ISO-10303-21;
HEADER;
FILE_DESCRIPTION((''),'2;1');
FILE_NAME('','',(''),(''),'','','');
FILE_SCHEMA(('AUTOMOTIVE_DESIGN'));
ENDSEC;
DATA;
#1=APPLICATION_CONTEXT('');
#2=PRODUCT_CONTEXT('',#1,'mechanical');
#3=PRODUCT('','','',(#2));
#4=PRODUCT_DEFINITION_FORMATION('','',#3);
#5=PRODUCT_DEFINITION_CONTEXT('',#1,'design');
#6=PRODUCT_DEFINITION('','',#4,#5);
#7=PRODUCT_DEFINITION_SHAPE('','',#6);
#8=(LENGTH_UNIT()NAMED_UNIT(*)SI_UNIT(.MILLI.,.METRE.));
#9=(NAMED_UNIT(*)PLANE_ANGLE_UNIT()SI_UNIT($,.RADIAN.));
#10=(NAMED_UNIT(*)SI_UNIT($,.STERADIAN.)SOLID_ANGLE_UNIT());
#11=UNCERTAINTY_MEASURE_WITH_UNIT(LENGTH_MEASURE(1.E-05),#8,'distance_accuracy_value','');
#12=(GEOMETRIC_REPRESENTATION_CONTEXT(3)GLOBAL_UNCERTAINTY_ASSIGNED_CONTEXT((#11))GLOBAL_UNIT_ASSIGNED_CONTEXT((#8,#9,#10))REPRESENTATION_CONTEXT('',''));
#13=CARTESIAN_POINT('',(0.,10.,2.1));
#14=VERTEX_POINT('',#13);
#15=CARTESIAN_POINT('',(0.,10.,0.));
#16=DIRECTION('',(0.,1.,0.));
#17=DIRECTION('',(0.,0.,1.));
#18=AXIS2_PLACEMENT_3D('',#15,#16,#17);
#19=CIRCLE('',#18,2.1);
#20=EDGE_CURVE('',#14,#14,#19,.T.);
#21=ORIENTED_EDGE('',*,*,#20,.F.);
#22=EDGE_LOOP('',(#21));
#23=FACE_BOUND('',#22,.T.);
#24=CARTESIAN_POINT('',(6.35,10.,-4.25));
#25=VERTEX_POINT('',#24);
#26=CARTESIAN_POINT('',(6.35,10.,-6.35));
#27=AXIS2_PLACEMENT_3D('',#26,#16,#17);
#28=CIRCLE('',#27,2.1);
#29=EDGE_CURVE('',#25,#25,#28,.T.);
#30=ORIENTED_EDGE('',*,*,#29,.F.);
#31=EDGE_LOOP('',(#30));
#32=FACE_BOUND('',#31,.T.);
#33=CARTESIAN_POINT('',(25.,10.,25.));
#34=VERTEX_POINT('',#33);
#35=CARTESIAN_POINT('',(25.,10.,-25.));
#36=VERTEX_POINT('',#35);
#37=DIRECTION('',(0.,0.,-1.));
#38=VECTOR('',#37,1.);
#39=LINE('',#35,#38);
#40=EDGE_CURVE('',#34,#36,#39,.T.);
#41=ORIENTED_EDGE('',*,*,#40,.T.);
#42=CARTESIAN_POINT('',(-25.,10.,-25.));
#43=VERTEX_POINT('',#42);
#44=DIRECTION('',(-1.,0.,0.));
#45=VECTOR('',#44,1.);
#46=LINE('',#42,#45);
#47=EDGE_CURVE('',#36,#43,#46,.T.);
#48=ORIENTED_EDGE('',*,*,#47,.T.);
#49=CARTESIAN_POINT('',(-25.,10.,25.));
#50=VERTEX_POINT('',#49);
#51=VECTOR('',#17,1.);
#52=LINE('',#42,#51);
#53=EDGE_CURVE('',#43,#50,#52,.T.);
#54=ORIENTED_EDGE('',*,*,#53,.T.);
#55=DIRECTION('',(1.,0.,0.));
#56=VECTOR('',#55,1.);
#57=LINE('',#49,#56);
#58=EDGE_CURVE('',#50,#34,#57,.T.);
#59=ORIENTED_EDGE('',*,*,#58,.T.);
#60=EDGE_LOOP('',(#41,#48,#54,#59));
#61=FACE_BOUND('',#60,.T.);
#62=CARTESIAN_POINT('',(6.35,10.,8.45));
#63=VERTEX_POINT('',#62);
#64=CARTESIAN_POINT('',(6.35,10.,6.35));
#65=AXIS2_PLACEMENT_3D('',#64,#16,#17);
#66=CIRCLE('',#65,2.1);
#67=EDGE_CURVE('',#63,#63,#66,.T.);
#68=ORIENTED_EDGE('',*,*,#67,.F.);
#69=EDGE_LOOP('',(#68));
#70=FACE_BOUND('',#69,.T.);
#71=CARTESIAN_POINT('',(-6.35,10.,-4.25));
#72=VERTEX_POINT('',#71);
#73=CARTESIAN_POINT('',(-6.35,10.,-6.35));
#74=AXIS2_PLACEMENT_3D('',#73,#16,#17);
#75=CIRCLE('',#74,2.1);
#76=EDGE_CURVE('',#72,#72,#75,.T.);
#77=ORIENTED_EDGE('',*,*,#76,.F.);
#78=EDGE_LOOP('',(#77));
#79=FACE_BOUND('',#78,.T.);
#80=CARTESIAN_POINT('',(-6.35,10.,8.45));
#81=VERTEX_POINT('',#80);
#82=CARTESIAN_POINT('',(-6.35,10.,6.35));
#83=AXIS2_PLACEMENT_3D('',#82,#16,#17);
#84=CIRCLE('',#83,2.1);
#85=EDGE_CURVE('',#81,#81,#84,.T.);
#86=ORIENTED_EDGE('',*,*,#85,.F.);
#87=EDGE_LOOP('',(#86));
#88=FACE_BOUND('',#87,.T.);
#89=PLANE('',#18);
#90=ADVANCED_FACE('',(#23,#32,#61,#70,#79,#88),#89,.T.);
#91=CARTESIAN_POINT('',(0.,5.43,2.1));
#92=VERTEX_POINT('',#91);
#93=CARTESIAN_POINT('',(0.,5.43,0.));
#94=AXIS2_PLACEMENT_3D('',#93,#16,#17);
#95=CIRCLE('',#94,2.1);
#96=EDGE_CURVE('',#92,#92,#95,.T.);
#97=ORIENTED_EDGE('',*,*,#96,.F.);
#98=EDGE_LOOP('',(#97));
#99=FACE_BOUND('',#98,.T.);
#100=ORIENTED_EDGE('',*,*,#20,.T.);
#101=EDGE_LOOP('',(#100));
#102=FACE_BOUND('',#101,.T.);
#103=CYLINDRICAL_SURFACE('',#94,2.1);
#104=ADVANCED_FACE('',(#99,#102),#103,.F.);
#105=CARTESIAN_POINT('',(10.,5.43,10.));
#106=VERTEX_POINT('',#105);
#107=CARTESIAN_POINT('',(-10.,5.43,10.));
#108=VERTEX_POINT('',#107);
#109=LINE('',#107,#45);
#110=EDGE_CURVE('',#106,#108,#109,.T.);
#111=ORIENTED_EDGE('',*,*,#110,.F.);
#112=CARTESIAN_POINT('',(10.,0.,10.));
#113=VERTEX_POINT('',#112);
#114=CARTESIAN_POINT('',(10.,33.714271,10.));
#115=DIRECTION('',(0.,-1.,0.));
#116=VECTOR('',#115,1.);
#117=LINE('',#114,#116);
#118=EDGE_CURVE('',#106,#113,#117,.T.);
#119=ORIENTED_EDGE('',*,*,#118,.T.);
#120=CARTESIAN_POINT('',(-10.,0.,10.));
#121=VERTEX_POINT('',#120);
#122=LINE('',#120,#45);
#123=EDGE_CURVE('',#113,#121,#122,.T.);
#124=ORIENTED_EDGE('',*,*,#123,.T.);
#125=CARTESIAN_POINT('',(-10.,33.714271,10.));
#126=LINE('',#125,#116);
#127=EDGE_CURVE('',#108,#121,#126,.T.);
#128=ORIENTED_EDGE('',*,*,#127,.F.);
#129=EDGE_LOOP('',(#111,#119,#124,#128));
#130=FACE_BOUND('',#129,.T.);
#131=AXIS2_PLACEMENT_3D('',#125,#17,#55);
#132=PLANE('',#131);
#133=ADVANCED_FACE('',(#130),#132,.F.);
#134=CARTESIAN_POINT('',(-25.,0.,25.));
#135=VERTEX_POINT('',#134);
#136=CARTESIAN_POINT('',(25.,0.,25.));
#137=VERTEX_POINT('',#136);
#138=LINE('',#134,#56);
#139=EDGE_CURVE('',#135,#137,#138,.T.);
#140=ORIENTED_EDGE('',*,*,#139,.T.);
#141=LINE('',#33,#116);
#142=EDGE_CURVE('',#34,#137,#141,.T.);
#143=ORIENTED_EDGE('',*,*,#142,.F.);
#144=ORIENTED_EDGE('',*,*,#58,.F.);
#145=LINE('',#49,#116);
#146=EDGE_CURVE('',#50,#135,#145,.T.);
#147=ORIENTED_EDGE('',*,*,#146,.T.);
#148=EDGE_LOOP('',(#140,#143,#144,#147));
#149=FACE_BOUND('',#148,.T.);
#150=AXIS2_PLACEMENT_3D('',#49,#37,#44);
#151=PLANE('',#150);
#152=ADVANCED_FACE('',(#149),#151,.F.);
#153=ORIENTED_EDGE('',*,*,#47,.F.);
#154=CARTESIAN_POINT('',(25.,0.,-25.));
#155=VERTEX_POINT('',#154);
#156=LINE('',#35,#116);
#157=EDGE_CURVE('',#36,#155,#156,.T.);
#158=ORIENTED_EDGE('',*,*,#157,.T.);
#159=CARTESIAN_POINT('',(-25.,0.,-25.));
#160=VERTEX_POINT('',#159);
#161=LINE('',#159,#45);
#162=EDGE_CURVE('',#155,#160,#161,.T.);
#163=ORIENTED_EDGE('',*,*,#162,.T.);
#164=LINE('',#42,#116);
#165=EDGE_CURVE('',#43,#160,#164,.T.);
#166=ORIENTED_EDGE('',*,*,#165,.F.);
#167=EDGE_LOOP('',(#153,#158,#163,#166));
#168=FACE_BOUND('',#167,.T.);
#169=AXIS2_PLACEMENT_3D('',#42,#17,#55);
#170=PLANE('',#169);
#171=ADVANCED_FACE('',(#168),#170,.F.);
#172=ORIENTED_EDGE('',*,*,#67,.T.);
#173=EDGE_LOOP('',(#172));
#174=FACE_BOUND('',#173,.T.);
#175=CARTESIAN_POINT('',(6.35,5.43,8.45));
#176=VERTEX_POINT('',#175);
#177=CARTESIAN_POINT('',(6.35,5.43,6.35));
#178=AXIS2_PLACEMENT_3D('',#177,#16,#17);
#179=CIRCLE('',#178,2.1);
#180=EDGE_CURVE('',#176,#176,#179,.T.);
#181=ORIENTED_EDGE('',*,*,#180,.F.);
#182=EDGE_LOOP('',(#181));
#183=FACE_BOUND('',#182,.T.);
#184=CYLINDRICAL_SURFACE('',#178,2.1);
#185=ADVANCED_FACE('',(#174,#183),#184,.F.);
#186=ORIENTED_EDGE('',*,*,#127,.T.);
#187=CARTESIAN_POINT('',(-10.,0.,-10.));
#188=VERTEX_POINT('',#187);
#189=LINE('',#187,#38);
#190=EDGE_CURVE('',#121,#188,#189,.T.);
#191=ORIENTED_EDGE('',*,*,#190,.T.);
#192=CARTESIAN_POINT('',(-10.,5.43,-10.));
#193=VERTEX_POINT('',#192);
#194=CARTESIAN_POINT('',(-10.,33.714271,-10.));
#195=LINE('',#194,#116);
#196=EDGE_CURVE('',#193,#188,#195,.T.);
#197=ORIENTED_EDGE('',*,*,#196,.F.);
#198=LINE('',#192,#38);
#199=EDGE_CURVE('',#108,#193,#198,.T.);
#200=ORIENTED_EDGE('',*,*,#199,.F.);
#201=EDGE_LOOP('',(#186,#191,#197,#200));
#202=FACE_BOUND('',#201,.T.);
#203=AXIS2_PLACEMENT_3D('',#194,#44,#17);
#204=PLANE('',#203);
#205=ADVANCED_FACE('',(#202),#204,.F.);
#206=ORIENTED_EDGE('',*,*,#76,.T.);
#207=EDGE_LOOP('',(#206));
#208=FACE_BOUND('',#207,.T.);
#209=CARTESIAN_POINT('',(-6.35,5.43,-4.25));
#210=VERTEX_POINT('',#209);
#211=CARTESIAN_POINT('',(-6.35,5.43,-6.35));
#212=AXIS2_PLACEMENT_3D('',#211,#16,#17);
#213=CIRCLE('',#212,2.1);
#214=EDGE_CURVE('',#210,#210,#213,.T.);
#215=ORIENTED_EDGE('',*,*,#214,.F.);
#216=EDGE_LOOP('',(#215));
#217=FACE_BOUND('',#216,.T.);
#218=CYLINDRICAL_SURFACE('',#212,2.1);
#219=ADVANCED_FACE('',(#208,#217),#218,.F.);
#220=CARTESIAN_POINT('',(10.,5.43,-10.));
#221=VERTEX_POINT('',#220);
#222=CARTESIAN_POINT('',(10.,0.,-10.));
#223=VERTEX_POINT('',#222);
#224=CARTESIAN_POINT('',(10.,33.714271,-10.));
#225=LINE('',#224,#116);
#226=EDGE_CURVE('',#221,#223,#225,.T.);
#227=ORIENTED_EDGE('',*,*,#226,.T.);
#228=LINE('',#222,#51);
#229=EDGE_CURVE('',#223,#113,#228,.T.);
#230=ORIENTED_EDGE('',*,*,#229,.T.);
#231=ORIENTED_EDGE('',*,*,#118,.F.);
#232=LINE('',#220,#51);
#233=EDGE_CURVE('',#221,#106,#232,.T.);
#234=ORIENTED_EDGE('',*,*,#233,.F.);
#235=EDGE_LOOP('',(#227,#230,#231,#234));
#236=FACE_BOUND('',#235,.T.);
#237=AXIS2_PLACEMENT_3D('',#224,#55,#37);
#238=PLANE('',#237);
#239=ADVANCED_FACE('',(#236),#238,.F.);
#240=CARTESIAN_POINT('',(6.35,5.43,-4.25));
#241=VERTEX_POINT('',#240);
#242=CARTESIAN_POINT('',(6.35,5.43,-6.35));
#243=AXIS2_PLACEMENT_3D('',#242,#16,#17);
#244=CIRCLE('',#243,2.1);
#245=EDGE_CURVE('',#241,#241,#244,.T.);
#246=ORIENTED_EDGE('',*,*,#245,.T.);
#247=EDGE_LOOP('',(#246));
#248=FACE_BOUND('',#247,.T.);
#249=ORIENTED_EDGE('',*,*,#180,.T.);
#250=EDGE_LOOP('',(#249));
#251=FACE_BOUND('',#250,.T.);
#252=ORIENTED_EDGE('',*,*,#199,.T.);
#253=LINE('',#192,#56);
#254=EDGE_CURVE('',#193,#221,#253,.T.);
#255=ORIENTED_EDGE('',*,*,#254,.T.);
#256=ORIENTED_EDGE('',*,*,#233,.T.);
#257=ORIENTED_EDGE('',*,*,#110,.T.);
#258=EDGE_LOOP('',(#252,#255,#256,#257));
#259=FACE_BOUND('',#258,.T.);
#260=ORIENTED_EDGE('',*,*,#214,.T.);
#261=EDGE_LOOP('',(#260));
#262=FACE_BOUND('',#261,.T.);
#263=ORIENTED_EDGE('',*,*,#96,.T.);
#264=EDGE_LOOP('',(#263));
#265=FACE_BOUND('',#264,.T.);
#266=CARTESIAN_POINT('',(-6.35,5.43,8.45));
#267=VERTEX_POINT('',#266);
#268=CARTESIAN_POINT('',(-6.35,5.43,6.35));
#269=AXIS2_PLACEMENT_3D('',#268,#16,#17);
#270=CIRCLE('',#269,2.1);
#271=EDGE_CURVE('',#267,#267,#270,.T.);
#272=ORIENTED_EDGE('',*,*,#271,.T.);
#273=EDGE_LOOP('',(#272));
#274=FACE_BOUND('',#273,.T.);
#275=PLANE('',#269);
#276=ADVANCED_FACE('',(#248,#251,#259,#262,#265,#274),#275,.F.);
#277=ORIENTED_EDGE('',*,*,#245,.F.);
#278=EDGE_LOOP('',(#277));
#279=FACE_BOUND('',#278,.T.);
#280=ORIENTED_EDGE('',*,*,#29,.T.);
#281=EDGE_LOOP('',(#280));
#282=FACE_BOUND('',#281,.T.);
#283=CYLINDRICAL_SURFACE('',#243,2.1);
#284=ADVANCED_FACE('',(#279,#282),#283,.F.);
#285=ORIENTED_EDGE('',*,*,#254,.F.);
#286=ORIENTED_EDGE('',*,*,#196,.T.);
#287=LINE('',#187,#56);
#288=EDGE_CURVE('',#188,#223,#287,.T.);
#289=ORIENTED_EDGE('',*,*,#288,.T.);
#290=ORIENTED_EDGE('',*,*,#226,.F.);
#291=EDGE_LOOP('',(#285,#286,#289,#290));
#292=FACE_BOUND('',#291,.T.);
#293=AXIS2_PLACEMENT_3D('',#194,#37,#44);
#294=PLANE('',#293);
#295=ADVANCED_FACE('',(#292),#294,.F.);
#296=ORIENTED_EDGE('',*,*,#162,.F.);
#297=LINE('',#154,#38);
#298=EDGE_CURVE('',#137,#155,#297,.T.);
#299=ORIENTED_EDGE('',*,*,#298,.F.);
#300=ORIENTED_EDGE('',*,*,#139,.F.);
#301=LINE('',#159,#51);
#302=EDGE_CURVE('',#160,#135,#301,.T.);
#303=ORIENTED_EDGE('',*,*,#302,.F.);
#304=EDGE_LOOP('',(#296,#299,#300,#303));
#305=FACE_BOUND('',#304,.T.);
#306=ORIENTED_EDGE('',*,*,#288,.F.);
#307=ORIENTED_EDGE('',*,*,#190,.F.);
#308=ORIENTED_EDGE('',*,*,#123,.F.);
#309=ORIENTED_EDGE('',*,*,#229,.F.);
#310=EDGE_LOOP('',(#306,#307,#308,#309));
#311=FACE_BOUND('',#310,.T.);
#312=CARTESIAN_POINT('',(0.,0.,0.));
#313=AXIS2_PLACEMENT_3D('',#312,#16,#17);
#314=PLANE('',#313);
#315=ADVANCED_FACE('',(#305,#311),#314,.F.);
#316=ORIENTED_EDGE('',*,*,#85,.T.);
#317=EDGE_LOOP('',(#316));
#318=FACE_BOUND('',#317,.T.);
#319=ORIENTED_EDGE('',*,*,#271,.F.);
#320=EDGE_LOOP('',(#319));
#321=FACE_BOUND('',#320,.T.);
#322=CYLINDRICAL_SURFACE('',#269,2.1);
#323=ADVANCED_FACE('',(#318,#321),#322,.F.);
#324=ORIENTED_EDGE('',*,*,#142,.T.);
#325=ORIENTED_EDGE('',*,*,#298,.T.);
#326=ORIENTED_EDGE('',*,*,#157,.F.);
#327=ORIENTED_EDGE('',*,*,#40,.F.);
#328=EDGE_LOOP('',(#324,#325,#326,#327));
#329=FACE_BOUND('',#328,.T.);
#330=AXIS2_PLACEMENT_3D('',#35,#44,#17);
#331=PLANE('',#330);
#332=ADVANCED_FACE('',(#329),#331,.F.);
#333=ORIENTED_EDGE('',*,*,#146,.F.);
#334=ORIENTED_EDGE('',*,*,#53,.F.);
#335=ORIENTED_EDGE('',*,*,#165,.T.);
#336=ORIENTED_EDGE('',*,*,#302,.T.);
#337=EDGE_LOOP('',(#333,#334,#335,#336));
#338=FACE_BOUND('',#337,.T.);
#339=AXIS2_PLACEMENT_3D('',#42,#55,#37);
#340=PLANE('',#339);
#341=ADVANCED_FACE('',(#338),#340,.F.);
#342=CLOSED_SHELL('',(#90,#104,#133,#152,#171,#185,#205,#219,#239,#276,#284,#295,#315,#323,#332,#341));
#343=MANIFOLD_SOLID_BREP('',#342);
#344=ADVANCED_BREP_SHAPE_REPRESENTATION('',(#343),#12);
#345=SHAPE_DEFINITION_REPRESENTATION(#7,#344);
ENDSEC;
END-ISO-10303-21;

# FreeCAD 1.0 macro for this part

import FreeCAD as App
import Part
import Sketcher
from FreeCAD import Vector
Q = App.Units.Quantity

doc = App.newDocument("Part")
body = doc.addObject("PartDesign::Body", "Body")

sketch1 = body.newObject("Sketcher::SketchObject", "Sketch")
sketch1.AttachmentSupport = (doc.getObject("XZ_Plane"), [""])
sketch1.MapMode = "FlatFace"
sketch1.addGeometry(Part.LineSegment(Vector(-25, -25, 0), Vector(-25, 25, 0)), False)
sketch1.addGeometry(Part.LineSegment(Vector(-25, 25, 0), Vector(25, 25, 0)), False)
sketch1.addGeometry(Part.LineSegment(Vector(25, 25, 0), Vector(25, -25, 0)), False)
sketch1.addGeometry(Part.LineSegment(Vector(25, -25, 0), Vector(-25, -25, 0)), False)
sketch1.addConstraint(Sketcher.Constraint("Coincident", 0, 2, 1, 1))
sketch1.addConstraint(Sketcher.Constraint("Coincident", 1, 2, 2, 1))
sketch1.addConstraint(Sketcher.Constraint("Coincident", 2, 2, 3, 1))
sketch1.addConstraint(Sketcher.Constraint("Coincident", 3, 2, 0, 1))
sketch1.addConstraint(Sketcher.Constraint("Vertical", 0))
sketch1.addConstraint(Sketcher.Constraint("Horizontal", 1))
sketch1.addConstraint(Sketcher.Constraint("Vertical", 2))
sketch1.addConstraint(Sketcher.Constraint("Horizontal", 3))
sketch1.addConstraint(Sketcher.Constraint("Symmetric", 0, 2, 2, 2, -1, 1))
sketch1.addConstraint(Sketcher.Constraint("Equal", 3, 0))
sketch1.addConstraint(Sketcher.Constraint("DistanceX", 1, 1, 1, 2, Q("50 mm")))
pad1 = body.newObject("PartDesign::Pad", "Pad")
pad1.Profile = sketch1
pad1.Length = 10
pad1.Reversed = True

sketch2 = body.newObject("Sketcher::SketchObject", "Sketch001")
sketch2.AttachmentSupport = (doc.getObject("XZ_Plane"), [""])
sketch2.MapMode = "FlatFace"
sketch2.AttachmentOffset = App.Placement(Vector(0, 0, -10), App.Rotation())
sketch2.addGeometry(Part.Circle(Vector(0, 0, 0), Vector(0, 0, 1), 2.1), False)
sketch2.addGeometry(Part.Circle(Vector(6.3, -6.3, 0), Vector(0, 0, 1), 2.1), False)
sketch2.addGeometry(Part.Circle(Vector(-6.3, -6.3, 0), Vector(0, 0, 1), 2.1), False)
sketch2.addGeometry(Part.Circle(Vector(-6.3, 6.3, 0), Vector(0, 0, 1), 2.1), False)
sketch2.addGeometry(Part.Circle(Vector(6.3, 6.3, 0), Vector(0, 0, 1), 2.1), False)
sketch2.addConstraint(Sketcher.Constraint("Coincident", 0, 3, -1, 1))
sketch2.addConstraint(Sketcher.Constraint("Equal", 0, 1))
sketch2.addConstraint(Sketcher.Constraint("Equal", 1, 2))
sketch2.addConstraint(Sketcher.Constraint("Equal", 2, 3))
sketch2.addConstraint(Sketcher.Constraint("Equal", 3, 4))
sketch2.addConstraint(Sketcher.Constraint("Symmetric", 1, 3, 3, 3, -1, 1))
sketch2.addConstraint(Sketcher.Constraint("Symmetric", 2, 3, 4, 3, -1, 1))
sketch2.addConstraint(Sketcher.Constraint("Symmetric", 1, 3, 2, 3, -2))
sketch2.addConstraint(Sketcher.Constraint("Diameter", 0, Q("4.2 mm")))
sketch2.addConstraint(Sketcher.Constraint("DistanceX", 2, 3, 1, 3, Q("12.7 mm")))
sketch2.addConstraint(Sketcher.Constraint("DistanceY", 2, 3, 3, 3, Q("12.7 mm")))
pocket1 = body.newObject("PartDesign::Pocket", "Pocket")
pocket1.Profile = sketch2
pocket1.Length = 4.57
pocket1.Reversed = True

sketch3 = body.newObject("Sketcher::SketchObject", "Sketch002")
sketch3.AttachmentSupport = (doc.getObject("XZ_Plane"), [""])
sketch3.MapMode = "FlatFace"
sketch3.addGeometry(Part.LineSegment(Vector(-10, 10, 0), Vector(-10, -10, 0)), False)
sketch3.addGeometry(Part.LineSegment(Vector(-10, -10, 0), Vector(10, -10, 0)), False)
sketch3.addGeometry(Part.LineSegment(Vector(10, -10, 0), Vector(10, 10, 0)), False)
sketch3.addGeometry(Part.LineSegment(Vector(10, 10, 0), Vector(-10, 10, 0)), False)
sketch3.addConstraint(Sketcher.Constraint("Coincident", 0, 2, 1, 1))
sketch3.addConstraint(Sketcher.Constraint("Coincident", 1, 2, 2, 1))
sketch3.addConstraint(Sketcher.Constraint("Coincident", 2, 2, 3, 1))
sketch3.addConstraint(Sketcher.Constraint("Coincident", 3, 2, 0, 1))
sketch3.addConstraint(Sketcher.Constraint("Vertical", 0))
sketch3.addConstraint(Sketcher.Constraint("Horizontal", 1))
sketch3.addConstraint(Sketcher.Constraint("Vertical", 2))
sketch3.addConstraint(Sketcher.Constraint("Horizontal", 3))
sketch3.addConstraint(Sketcher.Constraint("Symmetric", 0, 2, 2, 2, -1, 1))
sketch3.addConstraint(Sketcher.Constraint("Equal", 3, 0))
sketch3.addConstraint(Sketcher.Constraint("DistanceX", 1, 1, 1, 2, Q("20 mm")))
pocket2 = body.newObject("PartDesign::Pocket", "Pocket001")
pocket2.Profile = sketch3
pocket2.Length = 5.43

doc.recompute()
